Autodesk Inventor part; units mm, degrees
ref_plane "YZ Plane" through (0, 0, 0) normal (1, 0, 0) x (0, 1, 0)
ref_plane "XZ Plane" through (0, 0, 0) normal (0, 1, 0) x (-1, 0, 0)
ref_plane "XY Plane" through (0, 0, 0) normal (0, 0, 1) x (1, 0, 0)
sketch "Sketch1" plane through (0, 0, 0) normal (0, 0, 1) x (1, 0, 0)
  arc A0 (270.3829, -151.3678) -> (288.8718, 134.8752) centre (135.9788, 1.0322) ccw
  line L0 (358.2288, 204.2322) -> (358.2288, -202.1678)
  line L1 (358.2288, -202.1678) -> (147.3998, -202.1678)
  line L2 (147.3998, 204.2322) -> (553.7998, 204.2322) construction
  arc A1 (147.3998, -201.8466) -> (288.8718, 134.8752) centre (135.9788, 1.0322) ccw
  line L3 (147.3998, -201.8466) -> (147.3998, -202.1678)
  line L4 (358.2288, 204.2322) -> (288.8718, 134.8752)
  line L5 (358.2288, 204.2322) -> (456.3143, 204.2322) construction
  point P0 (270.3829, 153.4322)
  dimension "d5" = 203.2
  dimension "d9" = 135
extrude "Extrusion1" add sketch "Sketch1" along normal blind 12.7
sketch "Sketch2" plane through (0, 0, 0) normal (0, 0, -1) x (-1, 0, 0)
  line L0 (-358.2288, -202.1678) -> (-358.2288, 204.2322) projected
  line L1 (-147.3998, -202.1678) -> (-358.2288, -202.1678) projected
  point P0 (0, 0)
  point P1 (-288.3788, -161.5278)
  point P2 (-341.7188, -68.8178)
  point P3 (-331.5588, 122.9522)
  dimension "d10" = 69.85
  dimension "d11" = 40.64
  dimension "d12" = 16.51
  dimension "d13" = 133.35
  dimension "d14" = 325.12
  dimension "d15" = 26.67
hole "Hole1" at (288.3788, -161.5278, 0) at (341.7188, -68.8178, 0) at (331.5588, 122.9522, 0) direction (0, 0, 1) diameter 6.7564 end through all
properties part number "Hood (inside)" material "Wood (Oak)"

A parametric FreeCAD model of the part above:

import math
import FreeCAD as App
import Part
import Sketcher

V = App.Vector
Q = App.Units.Quantity

doc = App.newDocument("Part")
body = doc.addObject("PartDesign::Body", "Body")

# Sketch on XY plane
sketch1 = body.newObject("Sketcher::SketchObject", "Sketch")
sketch1.AttachmentSupport = (doc.getObject("XY_Plane"), [""])
sketch1.MapMode = "FlatFace"
sketch1.addGeometry([
    Part.ArcOfCircle(Part.Circle(V(135.98, 1.03, 0), V(0, 0, 1), 203.2), math.radians(-49), math.radians(41)),  # 0
    Part.ArcOfCircle(Part.Circle(V(135.98, 1.03, 0), V(0, 0, 1), 203.2), math.radians(-87), math.radians(-49)),  # 1
    Part.LineSegment(V(147.4, -201.85, 0), V(147.4, -202.17, 0)),  # 2
    Part.LineSegment(V(147.4, -202.17, 0), V(358.23, -202.17, 0)),  # 3
    Part.LineSegment(V(358.23, -202.17, 0), V(358.23, 204.23, 0)),  # 4
    Part.LineSegment(V(358.23, 204.23, 0), V(288.87, 134.88, 0)),  # 5
], False)
sketch1.addConstraint([
    Sketcher.Constraint("Tangent", 0, 1, 1, 2),
    Sketcher.Constraint("Coincident", 1, 1, 2, 1),
    Sketcher.Constraint("Coincident", 2, 2, 3, 1),
    Sketcher.Constraint("Coincident", 3, 2, 4, 1),
    Sketcher.Constraint("Coincident", 4, 2, 5, 1),
    Sketcher.Constraint("Coincident", 5, 2, 0, 2),
    Sketcher.Constraint("Vertical", 2),
    Sketcher.Constraint("Horizontal", 3),
    Sketcher.Constraint("Vertical", 4),
    Sketcher.Constraint("Equal", 0, 1),
    Sketcher.Constraint("Radius", 0, Q("8 in")),
    Sketcher.Constraint("Angle", 5, Q("-135 deg")),
    Sketcher.Constraint("DistanceY", 2, 2, 0, 3, Q("8 in")),
    Sketcher.Constraint("DistanceY", 0, 3, 4, 2, Q("8 in")),
    Sketcher.Constraint("DistanceY", 0, 1, 0, 3, Q("6 in")),
    Sketcher.Constraint("DistanceX", 0, 3, 3, 2, Q("8.75 in")),
    Sketcher.Constraint("DistanceX", -1, 1, 0, 1, Q("10.645 in")),
    Sketcher.Constraint("DistanceX", 3, 1, 3, 2, 210.829),
    Sketcher.Constraint("DistanceY", -1, 1, 0, 3, 1.0322),
])
pad1 = body.newObject("PartDesign::Pad", "Pad")
pad1.Profile = sketch1
pad1.Length = Q("0.5 in")

# Sketch on XY plane
sketch2 = body.newObject("Sketcher::SketchObject", "Sketch001")
sketch2.AttachmentSupport = (doc.getObject("XY_Plane"), [""])
sketch2.MapMode = "FlatFace"
sketch2.addGeometry([
    Part.Circle(V(288.4, -161.5, 0), V(0, 0, 1), 3.4),
    Part.Circle(V(341.7, -68.8, 0), V(0, 0, 1), 3.4),
    Part.Circle(V(331.6, 123, 0), V(0, 0, 1), 3.4),
], False)
sketch2.addConstraint([
    Sketcher.Constraint("Equal", 0, 1),
    Sketcher.Constraint("Equal", 1, 2),
    Sketcher.Constraint("Diameter", 0, Q("0.266 in")),
    Sketcher.Constraint("DistanceX", 0, 3, 1, 3, Q("2.1 in")),
    Sketcher.Constraint("DistanceX", 2, 3, 1, 3, Q("0.4 in")),
    Sketcher.Constraint("DistanceY", 0, 3, 2, 3, Q("11.2 in")),
    Sketcher.Constraint("DistanceY", 0, 3, 1, 3, Q("3.65 in")),
    Sketcher.Constraint("DistanceX", -1, 1, 0, 3, Q("11.3535 in")),
    Sketcher.Constraint("DistanceY", 0, 3, -1, 1, 161.5278),
])
doc.recompute()
hole = body.newObject("PartDesign::Hole", "Hole")
hole.Profile = sketch2
hole.ThreadType = "None"
hole.Diameter = Q("0.266 in")
hole.DepthType = "ThroughAll"
hole.Reversed = True

doc.recompute()
